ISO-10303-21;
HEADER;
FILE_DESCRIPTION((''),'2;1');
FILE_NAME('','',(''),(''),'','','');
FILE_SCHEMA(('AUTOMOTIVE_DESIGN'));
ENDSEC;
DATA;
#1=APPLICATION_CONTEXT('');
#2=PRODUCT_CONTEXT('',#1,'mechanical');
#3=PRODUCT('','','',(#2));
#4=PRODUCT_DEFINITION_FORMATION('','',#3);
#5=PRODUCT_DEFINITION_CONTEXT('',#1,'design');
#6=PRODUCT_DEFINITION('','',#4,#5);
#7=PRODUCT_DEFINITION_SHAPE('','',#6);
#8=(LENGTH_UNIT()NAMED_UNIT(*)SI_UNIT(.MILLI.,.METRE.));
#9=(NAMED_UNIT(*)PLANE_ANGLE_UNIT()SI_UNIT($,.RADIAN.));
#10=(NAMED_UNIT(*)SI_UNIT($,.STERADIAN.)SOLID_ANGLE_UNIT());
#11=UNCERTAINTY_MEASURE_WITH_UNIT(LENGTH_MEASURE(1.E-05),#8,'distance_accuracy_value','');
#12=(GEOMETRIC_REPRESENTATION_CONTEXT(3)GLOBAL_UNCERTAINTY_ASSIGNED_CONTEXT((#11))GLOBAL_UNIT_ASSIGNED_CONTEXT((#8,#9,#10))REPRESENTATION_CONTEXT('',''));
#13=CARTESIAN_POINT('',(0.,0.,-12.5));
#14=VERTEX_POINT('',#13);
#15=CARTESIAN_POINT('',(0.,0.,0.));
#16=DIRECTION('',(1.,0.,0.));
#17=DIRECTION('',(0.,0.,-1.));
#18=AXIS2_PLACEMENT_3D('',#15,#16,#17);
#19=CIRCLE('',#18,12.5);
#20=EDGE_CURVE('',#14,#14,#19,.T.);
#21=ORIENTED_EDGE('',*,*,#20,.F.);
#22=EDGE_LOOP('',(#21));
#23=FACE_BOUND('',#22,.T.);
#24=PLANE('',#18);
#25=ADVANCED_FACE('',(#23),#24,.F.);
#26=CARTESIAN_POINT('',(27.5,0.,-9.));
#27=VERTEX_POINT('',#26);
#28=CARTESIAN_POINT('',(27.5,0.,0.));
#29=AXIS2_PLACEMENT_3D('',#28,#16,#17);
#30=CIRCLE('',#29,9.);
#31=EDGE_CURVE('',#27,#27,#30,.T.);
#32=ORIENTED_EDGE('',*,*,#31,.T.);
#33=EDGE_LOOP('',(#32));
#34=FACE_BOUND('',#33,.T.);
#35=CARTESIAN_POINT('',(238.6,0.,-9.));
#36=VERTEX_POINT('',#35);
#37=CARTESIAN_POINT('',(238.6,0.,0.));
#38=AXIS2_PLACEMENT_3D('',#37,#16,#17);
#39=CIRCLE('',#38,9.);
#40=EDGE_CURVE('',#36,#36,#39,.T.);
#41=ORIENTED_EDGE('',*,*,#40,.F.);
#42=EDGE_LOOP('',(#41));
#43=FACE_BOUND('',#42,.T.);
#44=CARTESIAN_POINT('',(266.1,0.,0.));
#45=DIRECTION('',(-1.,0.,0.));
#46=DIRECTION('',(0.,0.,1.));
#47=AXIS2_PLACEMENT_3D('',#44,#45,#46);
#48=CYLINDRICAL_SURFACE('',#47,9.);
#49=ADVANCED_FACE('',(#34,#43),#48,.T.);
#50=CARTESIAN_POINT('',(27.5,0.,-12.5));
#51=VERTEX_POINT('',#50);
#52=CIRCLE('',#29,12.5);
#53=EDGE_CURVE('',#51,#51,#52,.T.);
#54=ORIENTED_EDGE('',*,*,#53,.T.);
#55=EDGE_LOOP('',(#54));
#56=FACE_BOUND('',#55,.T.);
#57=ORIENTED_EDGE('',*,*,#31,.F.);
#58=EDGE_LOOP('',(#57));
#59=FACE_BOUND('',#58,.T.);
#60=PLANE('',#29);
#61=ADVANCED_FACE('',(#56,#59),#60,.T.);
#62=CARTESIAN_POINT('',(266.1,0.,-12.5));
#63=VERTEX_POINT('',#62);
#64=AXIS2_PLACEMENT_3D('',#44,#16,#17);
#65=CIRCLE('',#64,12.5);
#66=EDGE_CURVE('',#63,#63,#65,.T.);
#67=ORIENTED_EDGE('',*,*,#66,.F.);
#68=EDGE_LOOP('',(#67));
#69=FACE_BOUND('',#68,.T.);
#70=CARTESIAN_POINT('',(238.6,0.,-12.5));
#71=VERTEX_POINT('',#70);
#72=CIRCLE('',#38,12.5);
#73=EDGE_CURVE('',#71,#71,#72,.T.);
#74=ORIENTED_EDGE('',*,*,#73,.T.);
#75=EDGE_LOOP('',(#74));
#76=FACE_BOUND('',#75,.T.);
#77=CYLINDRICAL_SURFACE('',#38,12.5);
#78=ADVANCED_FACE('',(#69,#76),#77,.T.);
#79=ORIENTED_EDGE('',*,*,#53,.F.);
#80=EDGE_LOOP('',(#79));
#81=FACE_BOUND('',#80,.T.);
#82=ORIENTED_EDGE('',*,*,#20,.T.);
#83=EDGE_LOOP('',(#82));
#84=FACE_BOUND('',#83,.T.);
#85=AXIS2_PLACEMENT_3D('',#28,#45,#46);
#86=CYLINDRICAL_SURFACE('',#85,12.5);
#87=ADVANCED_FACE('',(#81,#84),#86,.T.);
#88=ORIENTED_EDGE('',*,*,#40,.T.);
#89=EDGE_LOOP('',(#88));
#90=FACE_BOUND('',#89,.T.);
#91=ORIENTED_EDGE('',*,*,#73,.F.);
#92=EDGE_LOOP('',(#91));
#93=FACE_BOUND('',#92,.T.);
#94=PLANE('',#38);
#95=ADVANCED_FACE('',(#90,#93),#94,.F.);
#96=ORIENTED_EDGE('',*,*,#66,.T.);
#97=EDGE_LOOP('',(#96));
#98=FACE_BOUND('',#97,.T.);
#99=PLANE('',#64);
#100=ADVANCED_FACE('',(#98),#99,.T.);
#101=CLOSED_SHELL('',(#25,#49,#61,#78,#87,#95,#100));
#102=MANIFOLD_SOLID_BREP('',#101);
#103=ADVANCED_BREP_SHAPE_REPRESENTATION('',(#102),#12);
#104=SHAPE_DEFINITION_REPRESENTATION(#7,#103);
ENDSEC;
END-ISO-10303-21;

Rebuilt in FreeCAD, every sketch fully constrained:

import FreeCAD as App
import Part
import Sketcher
from FreeCAD import Vector

doc = App.newDocument("Part")
body = doc.addObject("PartDesign::Body", "Body")

sketch1 = doc.addObject("Sketcher::SketchObject", "Sketch")
body.addObject(sketch1)
sketch1.AttachmentSupport = (doc.YZ_Plane, [""])
sketch1.MapMode = "FlatFace"
sketch1.addGeometry([
    Part.Circle(Vector(0, 0, 0), Vector(0, 0, 1), 12),
    Part.Circle(Vector(0, 0, 0), Vector(0, 0, 1), 9),
], False)
sketch1.addConstraint([
    Sketcher.Constraint("Coincident", 0, 3, -1, 1),
    Sketcher.Constraint("Coincident", 1, 3, -1, 1),
    Sketcher.Constraint("Diameter", 0, 25.0),
    Sketcher.Constraint("Diameter", 1, 18.0),
])
pad1 = doc.addObject("PartDesign::Pad", "Pad")
body.addObject(pad1)
pad1.Profile = sketch1
pad1.Length = 27.5

sketch2 = doc.addObject("Sketcher::SketchObject", "Sketch001")
body.addObject(sketch2)
sketch2.AttachmentSupport = (doc.YZ_Plane, [""])
sketch2.MapMode = "FlatFace"
sketch2.addGeometry(Part.Circle(Vector(0, 0, 0), Vector(0, 0, 1), 9), False)
sketch2.addConstraint([
    Sketcher.Constraint("Coincident", 0, 3, -1, 1),
    Sketcher.Constraint("Diameter", 0, 18.0),
])
pad2 = doc.addObject("PartDesign::Pad", "Pad001")
body.addObject(pad2)
pad2.Profile = sketch2
pad2.Length = 266.1

sketch3 = doc.addObject("Sketcher::SketchObject", "Sketch002")
body.addObject(sketch3)
sketch3.AttachmentSupport = (doc.YZ_Plane, [""])
sketch3.MapMode = "FlatFace"
sketch3.AttachmentOffset = App.Placement(Vector(0, 0, 266.1), App.Rotation())
sketch3.addGeometry(Part.Circle(Vector(0, 0, 0), Vector(0, 0, 1), 12), False)
sketch3.addConstraint([
    Sketcher.Constraint("Coincident", 0, 3, -1, 1),
    Sketcher.Constraint("Diameter", 0, 25.0),
])
pad3 = doc.addObject("PartDesign::Pad", "Pad002")
body.addObject(pad3)
pad3.Profile = sketch3
pad3.Length = 27.5
pad3.Reversed = True

doc.recompute()
